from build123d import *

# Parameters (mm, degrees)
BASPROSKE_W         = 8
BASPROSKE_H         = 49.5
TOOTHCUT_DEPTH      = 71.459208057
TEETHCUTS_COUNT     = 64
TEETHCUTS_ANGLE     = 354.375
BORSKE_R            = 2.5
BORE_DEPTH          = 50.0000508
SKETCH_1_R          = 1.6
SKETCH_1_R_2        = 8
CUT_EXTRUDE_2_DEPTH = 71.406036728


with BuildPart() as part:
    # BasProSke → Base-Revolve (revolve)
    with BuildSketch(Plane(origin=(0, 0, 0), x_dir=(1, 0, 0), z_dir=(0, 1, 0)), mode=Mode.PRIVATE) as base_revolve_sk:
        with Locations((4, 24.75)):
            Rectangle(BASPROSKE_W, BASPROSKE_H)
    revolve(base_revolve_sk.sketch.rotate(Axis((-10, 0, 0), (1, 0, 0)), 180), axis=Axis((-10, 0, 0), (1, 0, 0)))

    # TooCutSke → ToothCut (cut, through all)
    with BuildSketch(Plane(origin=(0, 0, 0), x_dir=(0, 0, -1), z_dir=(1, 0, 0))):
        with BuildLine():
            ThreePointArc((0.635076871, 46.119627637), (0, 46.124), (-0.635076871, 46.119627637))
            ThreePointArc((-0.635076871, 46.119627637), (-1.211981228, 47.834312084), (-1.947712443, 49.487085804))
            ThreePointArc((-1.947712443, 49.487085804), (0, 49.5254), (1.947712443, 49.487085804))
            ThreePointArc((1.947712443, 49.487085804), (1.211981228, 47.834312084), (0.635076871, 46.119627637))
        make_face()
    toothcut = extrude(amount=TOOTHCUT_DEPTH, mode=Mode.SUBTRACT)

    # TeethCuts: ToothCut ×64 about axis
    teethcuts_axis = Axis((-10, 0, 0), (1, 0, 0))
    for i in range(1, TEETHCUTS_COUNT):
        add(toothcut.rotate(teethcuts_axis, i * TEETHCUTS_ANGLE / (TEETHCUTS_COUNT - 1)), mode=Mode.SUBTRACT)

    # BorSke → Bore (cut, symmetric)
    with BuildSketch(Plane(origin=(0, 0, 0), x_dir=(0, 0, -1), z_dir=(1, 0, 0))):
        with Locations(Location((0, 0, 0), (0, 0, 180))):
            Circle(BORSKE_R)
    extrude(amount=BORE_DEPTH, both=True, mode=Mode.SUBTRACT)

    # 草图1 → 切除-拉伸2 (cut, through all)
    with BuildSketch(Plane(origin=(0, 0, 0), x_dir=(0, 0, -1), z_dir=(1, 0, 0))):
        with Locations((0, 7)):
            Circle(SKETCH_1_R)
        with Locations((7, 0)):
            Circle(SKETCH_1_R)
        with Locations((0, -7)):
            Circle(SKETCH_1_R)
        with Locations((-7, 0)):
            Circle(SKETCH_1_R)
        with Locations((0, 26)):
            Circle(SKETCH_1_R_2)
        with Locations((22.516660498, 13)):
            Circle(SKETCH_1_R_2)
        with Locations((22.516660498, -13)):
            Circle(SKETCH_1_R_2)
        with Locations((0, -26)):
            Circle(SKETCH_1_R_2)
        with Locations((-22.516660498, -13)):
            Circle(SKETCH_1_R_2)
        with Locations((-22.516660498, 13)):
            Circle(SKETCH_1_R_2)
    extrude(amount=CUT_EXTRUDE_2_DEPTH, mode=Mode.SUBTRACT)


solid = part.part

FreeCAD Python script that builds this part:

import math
import FreeCAD as App
import Part
import Sketcher
from FreeCAD import Vector


def add_polygon(sketch, points):
    """Adds a closed chain of lines whose ends are joined by coincident constraints."""
    first, n = sketch.GeometryCount, len(points)
    for a, b in zip(points, points[1:] + points[:1]):
        sketch.addGeometry(Part.LineSegment(App.Vector(*a, 0), App.Vector(*b, 0)), False)
    for i in range(n):
        sketch.addConstraint(Sketcher.Constraint("Coincident", first + i, 2, first + (i + 1) % n, 1))

doc = App.newDocument("Part")
body = doc.addObject("PartDesign::Body", "Body")

# Sketch on XZ plane
sketch1 = body.newObject("Sketcher::SketchObject", "Sketch")
sketch1.AttachmentSupport = (doc.getObject("XZ_Plane"), [""])
sketch1.MapMode = "FlatFace"
add_polygon(sketch1, [(0, -50), (0, 0), (8, 0), (8, -50)])  # lines 0-3
sketch1.addConstraint([
    Sketcher.Constraint("Vertical", 0),
    Sketcher.Constraint("Horizontal", 1),
    Sketcher.Constraint("Vertical", 2),
    Sketcher.Constraint("Horizontal", 3),
    Sketcher.Constraint("Coincident", 0, 2, -1, 1),
    Sketcher.Constraint("DistanceX", 1, 1, 1, 2, 8.0),
    Sketcher.Constraint("DistanceY", 0, 1, 0, 2, 49.5),
])
revolution = body.newObject("PartDesign::Revolution", "Revolution")
revolution.Profile = sketch1
revolution.ReferenceAxis = (sketch1, ["H_Axis"])
revolution.Angle = 360

# Sketch on YZ plane
sketch2 = body.newObject("Sketcher::SketchObject", "Sketch001")
sketch2.AttachmentSupport = (doc.getObject("YZ_Plane"), [""])
sketch2.MapMode = "FlatFace"
sketch2.addGeometry([
    Part.ArcOfCircle(Part.Circle(Vector(0, 0, 0), Vector(0, 0, 1), 46.1), math.radians(-0.79), math.radians(0.79)),
    Part.ArcOfCircle(Part.Circle(Vector(40.9, -19.1, 0), Vector(0, 0, 1), 19.2), math.radians(63.3), math.radians(74.1)),
    Part.ArcOfCircle(Part.Circle(Vector(0, 0, 0), Vector(0, 0, 1), 49.5), math.radians(-2.25), math.radians(2.25)),
    Part.ArcOfCircle(Part.Circle(Vector(40.9, 19.1, 0), Vector(0, 0, 1), 19.2), math.radians(-74.1), math.radians(-63.3)),
], False)
sketch2.addConstraint([
    Sketcher.Constraint("Coincident", 0, 1, 1, 2),
    Sketcher.Constraint("Coincident", 1, 1, 2, 1),
    Sketcher.Constraint("Coincident", 2, 2, 3, 2),
    Sketcher.Constraint("Coincident", 3, 1, 0, 2),
    Sketcher.Constraint("Coincident", 0, 3, -1, 1),
    Sketcher.Constraint("Coincident", 2, 3, -1, 1),
    Sketcher.Constraint("Equal", 1, 3),
    Sketcher.Constraint("Symmetric", 1, 3, 3, 3, -1),
    Sketcher.Constraint("Radius", 1, 19.2),
    Sketcher.Constraint("Radius", 0, 46.124001),
    Sketcher.Constraint("Radius", 2, 49.5254),
    Sketcher.Constraint("DistanceX", 1, 3, 1, 1, 8.625899),
    Sketcher.Constraint("DistanceY", 1, 3, -1, 1, 19.100959),
])
pocket1 = body.newObject("PartDesign::Pocket", "Pocket")
pocket1.Profile = sketch2
pocket1.Type = "ThroughAll"
pocket1.Reversed = True
doc.recompute()

polarpattern = body.newObject("PartDesign::PolarPattern", "PolarPattern")
polarpattern.Originals = [pocket1]
polarpattern.Axis = (doc.getObject("X_Axis"), [""])
polarpattern.Angle = 360
polarpattern.Occurrences = 64
body.Tip = polarpattern

# Sketch on YZ plane
sketch3 = body.newObject("Sketcher::SketchObject", "Sketch002")
sketch3.AttachmentSupport = (doc.getObject("YZ_Plane"), [""])
sketch3.MapMode = "FlatFace"
sketch3.addGeometry(Part.Circle(Vector(0, 0, 0), Vector(0, 0, 1), 2.5), False)
sketch3.addConstraint([
    Sketcher.Constraint("Coincident", 0, 3, -1, 1),
    Sketcher.Constraint("Diameter", 0, 5.0),
])
pocket2 = body.newObject("PartDesign::Pocket", "Pocket001")
pocket2.Profile = sketch3
pocket2.Length = 100.000102
pocket2.Midplane = True

# Sketch on YZ plane
sketch4 = body.newObject("Sketcher::SketchObject", "Sketch003")
sketch4.AttachmentSupport = (doc.getObject("YZ_Plane"), [""])
sketch4.MapMode = "FlatFace"
sketch4.addGeometry([
    Part.Circle(Vector(7, 0, 0), Vector(0, 0, 1), 1.6),  # 0
    Part.Circle(Vector(0, -7, 0), Vector(0, 0, 1), 1.6),  # 1
    Part.Circle(Vector(-7, 0, 0), Vector(0, 0, 1), 1.6),  # 2
    Part.Circle(Vector(0, 7, 0), Vector(0, 0, 1), 1.6),  # 3
    Part.Circle(Vector(26, 0, 0), Vector(0, 0, 1), 8),  # 4
    Part.Circle(Vector(13, -22.5, 0), Vector(0, 0, 1), 8),  # 5
    Part.Circle(Vector(-13, -22.5, 0), Vector(0, 0, 1), 8),  # 6
    Part.Circle(Vector(-26, 0, 0), Vector(0, 0, 1), 8),  # 7
    Part.Circle(Vector(-13, 22.5, 0), Vector(0, 0, 1), 8),  # 8
    Part.Circle(Vector(13, 22.5, 0), Vector(0, 0, 1), 8),  # 9
], False)
sketch4.addConstraint([
    Sketcher.Constraint("Equal", 0, 1),
    Sketcher.Constraint("Equal", 1, 2),
    Sketcher.Constraint("Equal", 2, 3),
    Sketcher.Constraint("Equal", 4, 5),
    Sketcher.Constraint("Equal", 5, 6),
    Sketcher.Constraint("Equal", 6, 7),
    Sketcher.Constraint("Equal", 7, 8),
    Sketcher.Constraint("Equal", 8, 9),
    Sketcher.Constraint("Symmetric", 0, 3, 2, 3, -1, 1),
    Sketcher.Constraint("Symmetric", 1, 3, 3, 3, -1, 1),
    Sketcher.Constraint("Symmetric", 4, 3, 7, 3, -1, 1),
    Sketcher.Constraint("Symmetric", 5, 3, 8, 3, -1, 1),
    Sketcher.Constraint("Symmetric", 6, 3, 9, 3, -1, 1),
    Sketcher.Constraint("Symmetric", 5, 3, 6, 3, -2),
    Sketcher.Constraint("PointOnObject", 0, 3, -1),
    Sketcher.Constraint("PointOnObject", 1, 3, -2),
    Sketcher.Constraint("PointOnObject", 4, 3, -1),
    Sketcher.Constraint("Diameter", 4, 16.0),
    Sketcher.Constraint("Diameter", 0, 3.2),
    Sketcher.Constraint("DistanceX", -1, 1, 0, 3, 7.0),
    Sketcher.Constraint("DistanceY", 1, 3, -1, 1, 7.0),
    Sketcher.Constraint("DistanceX", -1, 1, 4, 3, 26.0),
    Sketcher.Constraint("DistanceX", -1, 1, 5, 3, 13.0),
    Sketcher.Constraint("DistanceY", 5, 3, -1, 1, 22.51666),
])
pocket3 = body.newObject("PartDesign::Pocket", "Pocket002")
pocket3.Profile = sketch4
pocket3.Type = "ThroughAll"
pocket3.Reversed = True

doc.recompute()
